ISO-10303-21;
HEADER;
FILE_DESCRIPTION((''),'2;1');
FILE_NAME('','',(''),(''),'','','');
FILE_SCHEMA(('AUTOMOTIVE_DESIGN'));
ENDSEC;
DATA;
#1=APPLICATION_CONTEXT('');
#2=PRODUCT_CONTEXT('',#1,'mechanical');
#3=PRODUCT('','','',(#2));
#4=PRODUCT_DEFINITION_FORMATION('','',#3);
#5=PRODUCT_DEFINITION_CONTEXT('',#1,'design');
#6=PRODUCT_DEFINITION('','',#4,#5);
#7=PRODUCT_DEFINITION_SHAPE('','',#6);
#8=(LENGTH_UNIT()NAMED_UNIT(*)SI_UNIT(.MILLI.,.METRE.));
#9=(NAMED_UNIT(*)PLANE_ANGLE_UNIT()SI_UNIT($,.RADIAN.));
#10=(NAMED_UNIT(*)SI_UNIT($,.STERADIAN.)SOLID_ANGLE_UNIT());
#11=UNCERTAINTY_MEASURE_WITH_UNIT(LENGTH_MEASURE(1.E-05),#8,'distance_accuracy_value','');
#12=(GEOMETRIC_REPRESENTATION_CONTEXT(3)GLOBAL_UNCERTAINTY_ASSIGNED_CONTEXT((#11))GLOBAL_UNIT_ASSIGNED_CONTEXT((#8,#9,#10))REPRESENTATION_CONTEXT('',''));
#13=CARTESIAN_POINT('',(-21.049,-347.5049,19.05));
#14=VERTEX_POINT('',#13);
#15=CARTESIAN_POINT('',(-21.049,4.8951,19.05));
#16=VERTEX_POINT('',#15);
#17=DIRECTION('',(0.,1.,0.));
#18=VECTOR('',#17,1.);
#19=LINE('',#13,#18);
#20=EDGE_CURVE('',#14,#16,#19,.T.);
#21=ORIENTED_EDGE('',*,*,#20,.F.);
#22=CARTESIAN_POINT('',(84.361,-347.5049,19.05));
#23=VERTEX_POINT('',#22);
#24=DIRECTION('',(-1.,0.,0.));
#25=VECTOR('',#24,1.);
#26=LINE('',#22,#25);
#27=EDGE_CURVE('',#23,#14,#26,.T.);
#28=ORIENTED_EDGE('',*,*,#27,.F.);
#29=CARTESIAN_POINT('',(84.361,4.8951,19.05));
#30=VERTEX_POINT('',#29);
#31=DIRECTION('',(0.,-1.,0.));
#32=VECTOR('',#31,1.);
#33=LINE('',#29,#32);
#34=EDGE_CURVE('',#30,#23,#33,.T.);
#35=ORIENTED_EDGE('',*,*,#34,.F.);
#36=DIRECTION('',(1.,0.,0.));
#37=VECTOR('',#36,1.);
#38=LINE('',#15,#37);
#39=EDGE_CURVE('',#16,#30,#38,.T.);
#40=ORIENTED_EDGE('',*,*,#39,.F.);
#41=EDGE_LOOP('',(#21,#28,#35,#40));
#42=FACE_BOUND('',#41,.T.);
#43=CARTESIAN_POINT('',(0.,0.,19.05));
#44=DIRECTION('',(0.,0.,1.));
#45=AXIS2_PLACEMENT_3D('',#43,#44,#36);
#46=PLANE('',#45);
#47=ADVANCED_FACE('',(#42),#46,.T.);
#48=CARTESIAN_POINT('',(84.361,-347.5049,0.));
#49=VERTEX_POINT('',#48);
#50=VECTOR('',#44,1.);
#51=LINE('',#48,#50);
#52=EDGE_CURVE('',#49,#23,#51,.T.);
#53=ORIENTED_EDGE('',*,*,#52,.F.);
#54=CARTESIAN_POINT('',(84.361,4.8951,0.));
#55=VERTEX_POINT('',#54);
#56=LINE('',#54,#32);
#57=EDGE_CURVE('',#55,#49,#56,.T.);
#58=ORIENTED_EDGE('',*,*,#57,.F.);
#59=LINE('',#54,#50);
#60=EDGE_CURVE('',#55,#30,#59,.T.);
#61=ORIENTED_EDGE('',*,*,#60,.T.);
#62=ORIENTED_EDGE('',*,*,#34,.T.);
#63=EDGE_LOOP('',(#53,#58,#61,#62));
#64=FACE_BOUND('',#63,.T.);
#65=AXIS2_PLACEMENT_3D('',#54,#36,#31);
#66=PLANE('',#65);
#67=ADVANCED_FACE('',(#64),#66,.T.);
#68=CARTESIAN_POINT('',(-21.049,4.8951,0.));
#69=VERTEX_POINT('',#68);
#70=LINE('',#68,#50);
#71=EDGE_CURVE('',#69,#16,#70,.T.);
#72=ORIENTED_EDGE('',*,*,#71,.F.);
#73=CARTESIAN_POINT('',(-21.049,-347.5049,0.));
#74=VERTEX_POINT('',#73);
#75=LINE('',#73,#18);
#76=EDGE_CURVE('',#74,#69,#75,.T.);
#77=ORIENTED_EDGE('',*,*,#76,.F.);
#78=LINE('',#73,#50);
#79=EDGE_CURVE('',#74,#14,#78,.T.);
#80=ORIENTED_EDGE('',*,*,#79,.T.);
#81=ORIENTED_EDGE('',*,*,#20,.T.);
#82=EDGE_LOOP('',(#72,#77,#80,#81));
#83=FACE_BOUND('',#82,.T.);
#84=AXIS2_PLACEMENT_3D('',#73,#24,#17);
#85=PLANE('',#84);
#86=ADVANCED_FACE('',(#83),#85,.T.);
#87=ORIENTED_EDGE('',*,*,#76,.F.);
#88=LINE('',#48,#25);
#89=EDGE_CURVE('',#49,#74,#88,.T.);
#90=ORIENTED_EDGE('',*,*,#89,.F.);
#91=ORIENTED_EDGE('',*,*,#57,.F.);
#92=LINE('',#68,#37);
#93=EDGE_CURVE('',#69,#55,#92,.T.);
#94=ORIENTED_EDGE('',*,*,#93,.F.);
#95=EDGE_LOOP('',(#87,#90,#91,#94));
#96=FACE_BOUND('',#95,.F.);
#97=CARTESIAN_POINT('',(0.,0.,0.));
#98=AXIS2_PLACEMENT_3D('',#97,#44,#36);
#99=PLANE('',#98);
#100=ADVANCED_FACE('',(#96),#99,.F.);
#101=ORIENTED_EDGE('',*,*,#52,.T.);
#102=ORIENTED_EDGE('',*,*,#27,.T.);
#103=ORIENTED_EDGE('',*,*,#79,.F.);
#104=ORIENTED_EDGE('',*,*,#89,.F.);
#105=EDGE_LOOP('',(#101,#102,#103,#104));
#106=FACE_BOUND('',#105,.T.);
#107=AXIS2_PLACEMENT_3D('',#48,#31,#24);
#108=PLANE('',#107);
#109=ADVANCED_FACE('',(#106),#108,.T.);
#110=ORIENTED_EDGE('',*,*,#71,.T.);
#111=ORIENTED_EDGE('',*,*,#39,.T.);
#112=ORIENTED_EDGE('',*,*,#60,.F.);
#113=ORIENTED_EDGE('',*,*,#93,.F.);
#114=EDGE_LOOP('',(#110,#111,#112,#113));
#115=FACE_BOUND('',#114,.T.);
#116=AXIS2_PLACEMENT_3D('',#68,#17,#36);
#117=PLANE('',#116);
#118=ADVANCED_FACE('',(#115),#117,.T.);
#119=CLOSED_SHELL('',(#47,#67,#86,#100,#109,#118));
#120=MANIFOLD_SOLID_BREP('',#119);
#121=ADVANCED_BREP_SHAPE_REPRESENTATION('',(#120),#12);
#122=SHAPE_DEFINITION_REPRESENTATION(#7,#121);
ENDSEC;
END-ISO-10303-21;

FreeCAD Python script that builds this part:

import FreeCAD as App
import Part
import Sketcher
Q = App.Units.Quantity


def add_polygon(sketch, points):
    """Adds a closed chain of lines whose ends are joined by coincident constraints."""
    first, n = sketch.GeometryCount, len(points)
    for a, b in zip(points, points[1:] + points[:1]):
        sketch.addGeometry(Part.LineSegment(App.Vector(*a, 0), App.Vector(*b, 0)), False)
    for i in range(n):
        sketch.addConstraint(Sketcher.Constraint("Coincident", first + i, 2, first + (i + 1) % n, 1))

doc = App.newDocument("Part")
body = doc.addObject("PartDesign::Body", "Body")

sketch1 = doc.addObject("Sketcher::SketchObject", "Sketch")
body.addObject(sketch1)
sketch1.AttachmentSupport = (doc.XY_Plane, [""])
sketch1.MapMode = "FlatFace"
add_polygon(sketch1, [(84, 5), (-21, 5), (-21, -348), (84, -348)])
sketch1.addConstraint(Sketcher.Constraint("Horizontal", 0))
sketch1.addConstraint(Sketcher.Constraint("Vertical", 1))
sketch1.addConstraint(Sketcher.Constraint("Horizontal", 2))
sketch1.addConstraint(Sketcher.Constraint("Vertical", 3))
sketch1.addConstraint(Sketcher.Constraint("DistanceX", 0, 2, 0, 1, Q("4.15 in")))
sketch1.addConstraint(Sketcher.Constraint("DistanceY", 1, 2, 1, 1, 352.4))
sketch1.addConstraint(Sketcher.Constraint("DistanceX", 0, 2, -1, 1, Q("0.8287 in")))
sketch1.addConstraint(Sketcher.Constraint("DistanceY", 1, 2, -1, 1, Q("13.6813 in")))
pad1 = doc.addObject("PartDesign::Pad", "Pad")
body.addObject(pad1)
pad1.Profile = sketch1
pad1.Length = Q("0.75 in")

doc.recompute()
